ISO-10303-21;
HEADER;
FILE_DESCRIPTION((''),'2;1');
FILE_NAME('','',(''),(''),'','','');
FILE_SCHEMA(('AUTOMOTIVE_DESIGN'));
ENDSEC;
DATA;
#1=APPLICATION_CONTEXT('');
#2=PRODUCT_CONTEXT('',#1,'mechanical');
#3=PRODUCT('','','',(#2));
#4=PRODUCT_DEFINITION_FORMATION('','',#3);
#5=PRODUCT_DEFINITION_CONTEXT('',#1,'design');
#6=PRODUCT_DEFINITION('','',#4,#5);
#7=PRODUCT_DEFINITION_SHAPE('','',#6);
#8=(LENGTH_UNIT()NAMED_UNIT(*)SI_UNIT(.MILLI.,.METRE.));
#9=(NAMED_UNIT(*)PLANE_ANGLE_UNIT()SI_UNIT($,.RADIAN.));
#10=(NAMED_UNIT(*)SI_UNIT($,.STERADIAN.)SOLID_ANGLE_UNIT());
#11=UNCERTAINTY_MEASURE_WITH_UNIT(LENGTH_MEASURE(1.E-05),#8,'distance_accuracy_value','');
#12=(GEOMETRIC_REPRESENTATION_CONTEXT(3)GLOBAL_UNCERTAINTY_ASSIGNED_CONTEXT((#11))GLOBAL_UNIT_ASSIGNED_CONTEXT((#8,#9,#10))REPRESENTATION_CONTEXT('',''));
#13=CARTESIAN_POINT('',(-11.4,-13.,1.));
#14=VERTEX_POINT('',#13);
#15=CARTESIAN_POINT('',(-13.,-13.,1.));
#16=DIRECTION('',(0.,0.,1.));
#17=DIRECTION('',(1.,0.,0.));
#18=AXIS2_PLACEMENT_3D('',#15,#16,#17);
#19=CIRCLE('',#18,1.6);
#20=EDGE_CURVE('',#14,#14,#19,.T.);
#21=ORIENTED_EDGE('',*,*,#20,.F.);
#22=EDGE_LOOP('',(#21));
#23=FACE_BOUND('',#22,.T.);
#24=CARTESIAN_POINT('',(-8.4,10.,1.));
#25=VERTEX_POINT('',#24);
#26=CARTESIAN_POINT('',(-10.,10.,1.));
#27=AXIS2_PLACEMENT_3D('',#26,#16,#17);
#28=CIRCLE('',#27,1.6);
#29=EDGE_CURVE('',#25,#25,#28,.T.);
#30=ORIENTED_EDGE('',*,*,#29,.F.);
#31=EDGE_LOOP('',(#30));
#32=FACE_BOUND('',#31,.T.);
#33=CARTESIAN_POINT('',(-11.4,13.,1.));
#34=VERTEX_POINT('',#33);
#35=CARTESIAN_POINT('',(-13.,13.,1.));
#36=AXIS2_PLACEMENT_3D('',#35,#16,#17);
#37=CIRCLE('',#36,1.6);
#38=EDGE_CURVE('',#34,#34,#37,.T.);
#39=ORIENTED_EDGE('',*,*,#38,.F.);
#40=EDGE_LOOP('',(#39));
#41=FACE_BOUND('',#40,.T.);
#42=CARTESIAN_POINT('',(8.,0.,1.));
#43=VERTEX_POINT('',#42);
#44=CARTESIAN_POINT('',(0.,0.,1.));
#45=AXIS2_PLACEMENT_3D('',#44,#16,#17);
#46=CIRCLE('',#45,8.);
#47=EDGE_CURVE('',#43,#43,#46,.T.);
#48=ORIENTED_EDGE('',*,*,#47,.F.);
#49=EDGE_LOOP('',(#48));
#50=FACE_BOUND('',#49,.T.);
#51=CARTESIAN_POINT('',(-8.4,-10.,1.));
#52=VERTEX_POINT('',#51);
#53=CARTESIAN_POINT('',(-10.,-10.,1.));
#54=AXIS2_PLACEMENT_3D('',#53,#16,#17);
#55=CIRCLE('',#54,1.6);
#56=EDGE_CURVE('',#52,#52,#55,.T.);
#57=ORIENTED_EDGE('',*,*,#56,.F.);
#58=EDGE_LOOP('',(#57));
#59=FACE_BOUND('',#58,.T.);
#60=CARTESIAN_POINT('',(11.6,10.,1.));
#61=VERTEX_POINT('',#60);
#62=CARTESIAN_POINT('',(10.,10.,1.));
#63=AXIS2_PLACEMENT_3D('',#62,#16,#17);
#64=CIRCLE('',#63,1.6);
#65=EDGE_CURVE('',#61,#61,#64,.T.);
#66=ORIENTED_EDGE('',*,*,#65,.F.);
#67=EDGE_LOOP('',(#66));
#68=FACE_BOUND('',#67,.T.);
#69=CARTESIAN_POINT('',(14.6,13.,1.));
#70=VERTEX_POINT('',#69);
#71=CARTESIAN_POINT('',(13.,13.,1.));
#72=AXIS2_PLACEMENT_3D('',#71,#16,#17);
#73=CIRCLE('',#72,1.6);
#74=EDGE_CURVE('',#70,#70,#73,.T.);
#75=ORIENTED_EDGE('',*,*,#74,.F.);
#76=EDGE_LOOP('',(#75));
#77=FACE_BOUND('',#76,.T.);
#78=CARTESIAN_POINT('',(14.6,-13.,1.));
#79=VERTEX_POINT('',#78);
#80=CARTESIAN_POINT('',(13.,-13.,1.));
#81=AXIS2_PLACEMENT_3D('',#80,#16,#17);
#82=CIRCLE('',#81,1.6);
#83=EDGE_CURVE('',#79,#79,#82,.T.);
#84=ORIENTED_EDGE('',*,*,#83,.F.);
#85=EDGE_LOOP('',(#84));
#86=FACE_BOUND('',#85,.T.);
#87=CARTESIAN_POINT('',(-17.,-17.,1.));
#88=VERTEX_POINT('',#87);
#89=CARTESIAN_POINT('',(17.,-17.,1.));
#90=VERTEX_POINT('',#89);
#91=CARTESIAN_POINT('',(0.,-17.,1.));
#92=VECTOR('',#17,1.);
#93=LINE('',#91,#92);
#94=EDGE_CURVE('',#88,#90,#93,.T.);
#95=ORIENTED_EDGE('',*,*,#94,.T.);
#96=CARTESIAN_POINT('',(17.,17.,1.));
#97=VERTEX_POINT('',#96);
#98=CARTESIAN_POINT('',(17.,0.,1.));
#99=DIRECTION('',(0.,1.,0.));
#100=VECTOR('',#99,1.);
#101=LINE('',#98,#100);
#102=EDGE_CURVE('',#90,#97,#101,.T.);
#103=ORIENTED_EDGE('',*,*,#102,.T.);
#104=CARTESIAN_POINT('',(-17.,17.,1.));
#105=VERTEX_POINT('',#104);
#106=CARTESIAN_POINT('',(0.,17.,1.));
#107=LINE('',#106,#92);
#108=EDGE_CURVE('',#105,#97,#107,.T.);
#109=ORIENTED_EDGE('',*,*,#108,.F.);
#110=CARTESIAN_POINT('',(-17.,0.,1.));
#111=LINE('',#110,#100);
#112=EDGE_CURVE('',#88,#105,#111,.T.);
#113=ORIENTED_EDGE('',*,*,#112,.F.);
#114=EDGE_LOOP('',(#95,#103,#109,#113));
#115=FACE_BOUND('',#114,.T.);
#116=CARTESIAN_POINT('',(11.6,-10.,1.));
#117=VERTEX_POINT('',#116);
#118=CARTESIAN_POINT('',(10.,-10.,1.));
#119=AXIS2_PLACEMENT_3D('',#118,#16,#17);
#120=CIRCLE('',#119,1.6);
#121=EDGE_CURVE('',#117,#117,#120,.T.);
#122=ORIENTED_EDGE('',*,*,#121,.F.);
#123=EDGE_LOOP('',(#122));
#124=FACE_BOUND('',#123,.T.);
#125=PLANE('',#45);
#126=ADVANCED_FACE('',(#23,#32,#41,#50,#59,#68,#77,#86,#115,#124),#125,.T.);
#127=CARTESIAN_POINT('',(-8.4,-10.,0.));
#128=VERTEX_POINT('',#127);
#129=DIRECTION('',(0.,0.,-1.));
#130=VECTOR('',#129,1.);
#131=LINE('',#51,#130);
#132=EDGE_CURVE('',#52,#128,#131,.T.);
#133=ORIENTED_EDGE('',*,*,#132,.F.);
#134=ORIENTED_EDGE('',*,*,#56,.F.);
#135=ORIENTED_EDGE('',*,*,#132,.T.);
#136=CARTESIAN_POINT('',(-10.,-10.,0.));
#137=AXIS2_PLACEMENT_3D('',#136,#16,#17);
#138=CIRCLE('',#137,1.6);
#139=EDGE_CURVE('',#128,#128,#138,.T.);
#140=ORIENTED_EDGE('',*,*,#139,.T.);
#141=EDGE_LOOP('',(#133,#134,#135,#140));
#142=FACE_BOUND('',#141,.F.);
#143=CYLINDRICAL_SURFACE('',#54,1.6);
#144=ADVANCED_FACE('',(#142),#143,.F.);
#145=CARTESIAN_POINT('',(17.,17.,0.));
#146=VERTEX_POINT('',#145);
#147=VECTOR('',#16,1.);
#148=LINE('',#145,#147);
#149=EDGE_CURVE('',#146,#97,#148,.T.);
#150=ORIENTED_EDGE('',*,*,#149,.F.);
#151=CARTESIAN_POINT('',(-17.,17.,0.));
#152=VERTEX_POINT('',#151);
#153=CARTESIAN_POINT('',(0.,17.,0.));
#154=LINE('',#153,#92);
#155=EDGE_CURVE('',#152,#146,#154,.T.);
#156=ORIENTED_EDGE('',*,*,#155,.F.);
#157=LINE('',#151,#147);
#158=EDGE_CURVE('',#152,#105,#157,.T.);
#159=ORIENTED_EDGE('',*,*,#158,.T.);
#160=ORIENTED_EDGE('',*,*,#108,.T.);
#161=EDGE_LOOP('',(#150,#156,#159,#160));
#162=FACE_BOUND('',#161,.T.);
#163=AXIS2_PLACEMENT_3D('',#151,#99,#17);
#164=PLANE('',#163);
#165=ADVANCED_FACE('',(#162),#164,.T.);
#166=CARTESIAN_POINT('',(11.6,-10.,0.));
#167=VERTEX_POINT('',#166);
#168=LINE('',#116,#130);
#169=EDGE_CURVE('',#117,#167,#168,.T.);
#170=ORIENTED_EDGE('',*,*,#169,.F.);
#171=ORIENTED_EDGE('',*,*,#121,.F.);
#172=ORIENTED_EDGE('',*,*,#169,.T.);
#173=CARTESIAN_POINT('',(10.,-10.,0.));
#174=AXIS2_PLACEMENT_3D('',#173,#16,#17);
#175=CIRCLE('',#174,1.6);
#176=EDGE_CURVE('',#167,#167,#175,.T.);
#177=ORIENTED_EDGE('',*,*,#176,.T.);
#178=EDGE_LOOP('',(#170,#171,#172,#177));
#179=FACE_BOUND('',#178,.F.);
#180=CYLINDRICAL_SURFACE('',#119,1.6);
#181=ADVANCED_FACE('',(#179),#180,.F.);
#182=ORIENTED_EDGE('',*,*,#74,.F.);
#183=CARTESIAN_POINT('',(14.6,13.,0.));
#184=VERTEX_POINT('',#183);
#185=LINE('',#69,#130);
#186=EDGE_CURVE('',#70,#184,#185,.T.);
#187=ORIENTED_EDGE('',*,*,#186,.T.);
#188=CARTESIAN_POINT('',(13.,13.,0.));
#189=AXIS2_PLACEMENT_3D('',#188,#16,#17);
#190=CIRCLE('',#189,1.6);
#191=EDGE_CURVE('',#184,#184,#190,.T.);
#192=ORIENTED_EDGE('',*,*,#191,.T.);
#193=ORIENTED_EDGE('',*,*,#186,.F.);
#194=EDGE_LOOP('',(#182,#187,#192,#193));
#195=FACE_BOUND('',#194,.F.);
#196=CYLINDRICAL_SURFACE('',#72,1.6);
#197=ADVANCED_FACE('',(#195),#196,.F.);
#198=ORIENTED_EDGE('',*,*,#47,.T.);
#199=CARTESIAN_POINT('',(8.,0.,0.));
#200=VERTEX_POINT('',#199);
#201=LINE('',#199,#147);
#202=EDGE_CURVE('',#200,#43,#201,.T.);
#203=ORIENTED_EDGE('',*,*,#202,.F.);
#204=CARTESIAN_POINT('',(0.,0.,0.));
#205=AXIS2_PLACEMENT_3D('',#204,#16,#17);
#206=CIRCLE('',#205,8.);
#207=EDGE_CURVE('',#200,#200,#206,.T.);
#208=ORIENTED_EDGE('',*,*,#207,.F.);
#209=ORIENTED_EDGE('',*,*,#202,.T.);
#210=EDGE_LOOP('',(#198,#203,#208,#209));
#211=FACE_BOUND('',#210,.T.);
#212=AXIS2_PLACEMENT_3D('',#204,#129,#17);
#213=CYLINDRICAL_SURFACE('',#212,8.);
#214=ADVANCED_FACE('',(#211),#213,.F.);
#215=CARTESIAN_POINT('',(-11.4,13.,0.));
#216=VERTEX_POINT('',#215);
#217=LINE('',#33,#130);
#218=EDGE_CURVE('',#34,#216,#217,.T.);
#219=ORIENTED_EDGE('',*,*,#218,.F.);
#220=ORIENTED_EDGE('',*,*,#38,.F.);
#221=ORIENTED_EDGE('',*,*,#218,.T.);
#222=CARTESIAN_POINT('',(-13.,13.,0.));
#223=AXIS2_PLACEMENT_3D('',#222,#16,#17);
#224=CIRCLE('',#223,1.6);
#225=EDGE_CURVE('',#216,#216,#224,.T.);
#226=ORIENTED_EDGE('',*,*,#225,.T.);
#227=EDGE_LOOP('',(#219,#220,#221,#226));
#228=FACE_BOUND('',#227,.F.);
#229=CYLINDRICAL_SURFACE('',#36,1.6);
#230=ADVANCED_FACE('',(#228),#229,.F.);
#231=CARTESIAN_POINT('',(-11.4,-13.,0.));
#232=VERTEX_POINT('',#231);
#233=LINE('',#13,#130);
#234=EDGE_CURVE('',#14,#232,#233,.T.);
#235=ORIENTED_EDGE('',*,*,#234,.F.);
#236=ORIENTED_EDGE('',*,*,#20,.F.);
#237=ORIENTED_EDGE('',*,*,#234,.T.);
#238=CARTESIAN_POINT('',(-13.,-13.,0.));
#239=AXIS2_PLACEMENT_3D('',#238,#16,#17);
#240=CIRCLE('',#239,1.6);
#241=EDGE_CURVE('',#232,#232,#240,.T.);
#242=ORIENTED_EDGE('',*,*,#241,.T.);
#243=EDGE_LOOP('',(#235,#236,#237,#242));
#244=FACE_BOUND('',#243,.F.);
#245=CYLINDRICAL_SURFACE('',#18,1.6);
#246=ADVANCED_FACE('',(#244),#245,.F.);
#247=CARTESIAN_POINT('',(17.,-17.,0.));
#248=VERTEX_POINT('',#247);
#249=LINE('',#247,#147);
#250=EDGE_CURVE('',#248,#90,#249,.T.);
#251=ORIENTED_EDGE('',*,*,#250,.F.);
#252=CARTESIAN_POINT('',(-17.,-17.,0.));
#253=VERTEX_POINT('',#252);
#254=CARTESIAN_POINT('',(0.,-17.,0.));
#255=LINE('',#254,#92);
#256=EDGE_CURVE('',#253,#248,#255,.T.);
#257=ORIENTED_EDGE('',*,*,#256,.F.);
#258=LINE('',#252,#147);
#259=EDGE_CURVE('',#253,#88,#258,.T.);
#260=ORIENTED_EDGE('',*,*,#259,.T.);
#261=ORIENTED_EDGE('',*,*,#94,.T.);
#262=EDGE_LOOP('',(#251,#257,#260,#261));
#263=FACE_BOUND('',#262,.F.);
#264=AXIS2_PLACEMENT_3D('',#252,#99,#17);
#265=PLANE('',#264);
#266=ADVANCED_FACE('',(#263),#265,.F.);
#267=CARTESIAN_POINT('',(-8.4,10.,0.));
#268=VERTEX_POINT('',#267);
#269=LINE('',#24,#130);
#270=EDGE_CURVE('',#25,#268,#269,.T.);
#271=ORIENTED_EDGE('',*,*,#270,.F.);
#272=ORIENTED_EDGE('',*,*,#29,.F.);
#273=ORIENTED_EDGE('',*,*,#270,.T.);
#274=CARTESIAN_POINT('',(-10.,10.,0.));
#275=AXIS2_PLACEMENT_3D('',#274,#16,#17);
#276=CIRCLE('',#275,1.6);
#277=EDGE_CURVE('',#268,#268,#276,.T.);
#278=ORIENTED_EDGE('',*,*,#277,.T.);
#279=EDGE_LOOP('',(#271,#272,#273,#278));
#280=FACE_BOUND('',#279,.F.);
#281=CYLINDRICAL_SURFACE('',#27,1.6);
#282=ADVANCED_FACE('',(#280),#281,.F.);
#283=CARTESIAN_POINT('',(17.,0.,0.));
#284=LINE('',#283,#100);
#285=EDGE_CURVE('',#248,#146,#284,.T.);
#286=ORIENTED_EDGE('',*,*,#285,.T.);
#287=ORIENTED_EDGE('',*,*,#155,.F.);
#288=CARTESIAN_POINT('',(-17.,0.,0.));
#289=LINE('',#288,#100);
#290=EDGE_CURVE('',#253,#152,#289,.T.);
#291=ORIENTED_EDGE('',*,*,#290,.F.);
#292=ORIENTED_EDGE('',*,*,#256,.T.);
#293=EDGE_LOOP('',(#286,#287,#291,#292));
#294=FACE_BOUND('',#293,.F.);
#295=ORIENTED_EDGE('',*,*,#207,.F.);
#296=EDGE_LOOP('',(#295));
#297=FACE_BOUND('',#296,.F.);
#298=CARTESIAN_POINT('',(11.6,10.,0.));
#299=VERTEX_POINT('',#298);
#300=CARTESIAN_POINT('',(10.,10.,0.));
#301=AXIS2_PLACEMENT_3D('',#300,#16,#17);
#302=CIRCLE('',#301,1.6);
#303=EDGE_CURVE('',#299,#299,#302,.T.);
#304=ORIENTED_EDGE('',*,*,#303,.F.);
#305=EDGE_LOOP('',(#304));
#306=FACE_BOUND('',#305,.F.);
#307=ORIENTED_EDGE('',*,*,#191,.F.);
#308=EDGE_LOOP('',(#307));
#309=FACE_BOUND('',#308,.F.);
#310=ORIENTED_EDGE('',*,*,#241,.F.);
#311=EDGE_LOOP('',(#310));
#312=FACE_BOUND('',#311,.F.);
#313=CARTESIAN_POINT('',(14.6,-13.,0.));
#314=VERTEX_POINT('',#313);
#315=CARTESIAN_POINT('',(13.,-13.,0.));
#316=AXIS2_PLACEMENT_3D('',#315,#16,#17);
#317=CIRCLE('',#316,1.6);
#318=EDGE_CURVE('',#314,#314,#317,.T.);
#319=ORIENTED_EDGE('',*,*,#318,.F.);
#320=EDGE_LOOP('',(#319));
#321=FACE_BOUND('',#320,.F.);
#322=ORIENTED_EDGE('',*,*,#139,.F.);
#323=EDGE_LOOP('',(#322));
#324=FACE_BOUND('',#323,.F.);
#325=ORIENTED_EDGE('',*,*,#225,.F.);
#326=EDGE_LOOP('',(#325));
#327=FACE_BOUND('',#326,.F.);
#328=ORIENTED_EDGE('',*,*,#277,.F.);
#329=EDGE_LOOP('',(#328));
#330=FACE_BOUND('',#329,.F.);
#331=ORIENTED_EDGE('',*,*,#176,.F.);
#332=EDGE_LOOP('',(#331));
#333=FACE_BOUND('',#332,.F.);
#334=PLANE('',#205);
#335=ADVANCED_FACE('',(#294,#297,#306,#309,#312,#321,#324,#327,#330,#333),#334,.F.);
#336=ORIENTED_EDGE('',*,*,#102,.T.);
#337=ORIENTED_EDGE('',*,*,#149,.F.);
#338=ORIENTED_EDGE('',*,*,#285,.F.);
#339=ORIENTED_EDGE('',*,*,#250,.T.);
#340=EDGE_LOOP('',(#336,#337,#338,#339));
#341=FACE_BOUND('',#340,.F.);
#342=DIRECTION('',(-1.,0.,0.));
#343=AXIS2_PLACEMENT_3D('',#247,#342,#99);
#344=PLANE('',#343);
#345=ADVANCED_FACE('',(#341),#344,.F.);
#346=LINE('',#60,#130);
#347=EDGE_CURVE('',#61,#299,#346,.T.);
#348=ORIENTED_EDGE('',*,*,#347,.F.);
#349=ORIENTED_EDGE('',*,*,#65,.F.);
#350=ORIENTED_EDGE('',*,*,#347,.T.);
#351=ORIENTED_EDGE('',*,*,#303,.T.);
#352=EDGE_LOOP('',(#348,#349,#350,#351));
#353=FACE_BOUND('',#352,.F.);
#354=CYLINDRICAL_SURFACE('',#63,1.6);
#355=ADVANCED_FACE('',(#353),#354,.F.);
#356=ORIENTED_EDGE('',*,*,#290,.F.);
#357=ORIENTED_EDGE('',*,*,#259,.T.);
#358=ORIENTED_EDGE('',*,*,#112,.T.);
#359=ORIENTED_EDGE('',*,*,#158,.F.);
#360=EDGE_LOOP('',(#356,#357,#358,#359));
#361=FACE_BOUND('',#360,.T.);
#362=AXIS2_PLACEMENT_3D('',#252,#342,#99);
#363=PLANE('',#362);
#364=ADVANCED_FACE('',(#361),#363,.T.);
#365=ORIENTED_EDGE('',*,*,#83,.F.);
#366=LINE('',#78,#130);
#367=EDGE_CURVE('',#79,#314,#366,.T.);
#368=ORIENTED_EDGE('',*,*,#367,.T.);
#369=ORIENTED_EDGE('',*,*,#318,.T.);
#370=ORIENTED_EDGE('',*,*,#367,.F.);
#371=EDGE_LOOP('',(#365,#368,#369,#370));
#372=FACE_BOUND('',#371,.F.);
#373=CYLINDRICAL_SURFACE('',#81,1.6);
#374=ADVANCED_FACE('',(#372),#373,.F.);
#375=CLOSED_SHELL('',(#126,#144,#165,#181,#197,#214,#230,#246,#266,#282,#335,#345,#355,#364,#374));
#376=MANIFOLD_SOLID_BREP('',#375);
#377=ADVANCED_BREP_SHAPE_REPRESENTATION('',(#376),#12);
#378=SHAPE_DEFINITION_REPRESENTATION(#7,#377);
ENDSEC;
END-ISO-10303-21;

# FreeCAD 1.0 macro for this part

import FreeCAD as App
import Part
import Sketcher

V = App.Vector

doc = App.newDocument("Part")
body = doc.addObject("PartDesign::Body", "Body")

sketch1 = doc.addObject("Sketcher::SketchObject", "Sketch")
body.addObject(sketch1)
sketch1.AttachmentSupport = (doc.XY_Plane, [""])
sketch1.MapMode = "FlatFace"
sketch1.addGeometry([
    Part.LineSegment(V(-17, 17, 0), V(-17, -17, 0)),
    Part.LineSegment(V(-17, -17, 0), V(17, -17, 0)),
    Part.LineSegment(V(17, -17, 0), V(17, 17, 0)),
    Part.LineSegment(V(17, 17, 0), V(-17, 17, 0)),
    Part.Circle(V(0, 0, 0), V(0, 0, 1), 8),
], False)
sketch1.addConstraint([
    Sketcher.Constraint("Coincident", 0, 2, 1, 1),
    Sketcher.Constraint("Coincident", 1, 2, 2, 1),
    Sketcher.Constraint("Coincident", 2, 2, 3, 1),
    Sketcher.Constraint("Coincident", 3, 2, 0, 1),
    Sketcher.Constraint("Vertical", 0),
    Sketcher.Constraint("Horizontal", 1),
    Sketcher.Constraint("Vertical", 2),
    Sketcher.Constraint("Horizontal", 3),
    Sketcher.Constraint("Coincident", 4, 3, -1, 1),
    Sketcher.Constraint("Symmetric", 0, 2, 2, 2, -1, 1),
    Sketcher.Constraint("Equal", 3, 0),
    Sketcher.Constraint("Diameter", 4, 16.0),
    Sketcher.Constraint("DistanceX", 1, 1, 1, 2, 34.0),
])
pad1 = doc.addObject("PartDesign::Pad", "Pad")
body.addObject(pad1)
pad1.Profile = sketch1
pad1.Length = 1

sketch2 = doc.addObject("Sketcher::SketchObject", "Sketch001")
body.addObject(sketch2)
sketch2.AttachmentSupport = (doc.XY_Plane, [""])
sketch2.MapMode = "FlatFace"
sketch2.AttachmentOffset = App.Placement(V(0, 0, 1), App.Rotation())
sketch2.addGeometry([
    Part.Circle(V(10, 10, 0), V(0, 0, 1), 1.6),
    Part.Circle(V(10, -10, 0), V(0, 0, 1), 1.6),
    Part.Circle(V(-10, 10, 0), V(0, 0, 1), 1.6),
    Part.Circle(V(-10, -10, 0), V(0, 0, 1), 1.6),
], False)
sketch2.addConstraint([
    Sketcher.Constraint("Equal", 0, 1),
    Sketcher.Constraint("Equal", 1, 2),
    Sketcher.Constraint("Equal", 2, 3),
    Sketcher.Constraint("Symmetric", 1, 3, 2, 3, -1, 1),
    Sketcher.Constraint("Symmetric", 0, 3, 3, 3, -1, 1),
    Sketcher.Constraint("Symmetric", 0, 3, 2, 3, -2),
    Sketcher.Constraint("Diameter", 0, 3.2),
    Sketcher.Constraint("DistanceX", -1, 1, 0, 3, 10.0),
    Sketcher.Constraint("DistanceY", -1, 1, 0, 3, 10.0),
])
pocket1 = doc.addObject("PartDesign::Pocket", "Pocket")
body.addObject(pocket1)
pocket1.Profile = sketch2
pocket1.Length = 5

sketch3 = doc.addObject("Sketcher::SketchObject", "Sketch002")
body.addObject(sketch3)
sketch3.AttachmentSupport = (doc.XY_Plane, [""])
sketch3.MapMode = "FlatFace"
sketch3.AttachmentOffset = App.Placement(V(0, 0, 1), App.Rotation())
sketch3.addGeometry([
    Part.Circle(V(-13, 13, 0), V(0, 0, 1), 1.6),
    Part.Circle(V(13, 13, 0), V(0, 0, 1), 1.6),
    Part.Circle(V(-13, -13, 0), V(0, 0, 1), 1.6),
    Part.Circle(V(13, -13, 0), V(0, 0, 1), 1.6),
], False)
sketch3.addConstraint([
    Sketcher.Constraint("Equal", 0, 1),
    Sketcher.Constraint("Equal", 1, 2),
    Sketcher.Constraint("Equal", 2, 3),
    Sketcher.Constraint("Symmetric", 1, 3, 2, 3, -1, 1),
    Sketcher.Constraint("Symmetric", 0, 3, 3, 3, -1, 1),
    Sketcher.Constraint("Symmetric", 0, 3, 1, 3, -2),
    Sketcher.Constraint("Diameter", 0, 3.2),
    Sketcher.Constraint("DistanceX", 0, 3, -1, 1, 13.0),
    Sketcher.Constraint("DistanceY", -1, 1, 0, 3, 13.0),
])
pocket2 = doc.addObject("PartDesign::Pocket", "Pocket001")
body.addObject(pocket2)
pocket2.Profile = sketch3
pocket2.Length = 5

doc.recompute()
